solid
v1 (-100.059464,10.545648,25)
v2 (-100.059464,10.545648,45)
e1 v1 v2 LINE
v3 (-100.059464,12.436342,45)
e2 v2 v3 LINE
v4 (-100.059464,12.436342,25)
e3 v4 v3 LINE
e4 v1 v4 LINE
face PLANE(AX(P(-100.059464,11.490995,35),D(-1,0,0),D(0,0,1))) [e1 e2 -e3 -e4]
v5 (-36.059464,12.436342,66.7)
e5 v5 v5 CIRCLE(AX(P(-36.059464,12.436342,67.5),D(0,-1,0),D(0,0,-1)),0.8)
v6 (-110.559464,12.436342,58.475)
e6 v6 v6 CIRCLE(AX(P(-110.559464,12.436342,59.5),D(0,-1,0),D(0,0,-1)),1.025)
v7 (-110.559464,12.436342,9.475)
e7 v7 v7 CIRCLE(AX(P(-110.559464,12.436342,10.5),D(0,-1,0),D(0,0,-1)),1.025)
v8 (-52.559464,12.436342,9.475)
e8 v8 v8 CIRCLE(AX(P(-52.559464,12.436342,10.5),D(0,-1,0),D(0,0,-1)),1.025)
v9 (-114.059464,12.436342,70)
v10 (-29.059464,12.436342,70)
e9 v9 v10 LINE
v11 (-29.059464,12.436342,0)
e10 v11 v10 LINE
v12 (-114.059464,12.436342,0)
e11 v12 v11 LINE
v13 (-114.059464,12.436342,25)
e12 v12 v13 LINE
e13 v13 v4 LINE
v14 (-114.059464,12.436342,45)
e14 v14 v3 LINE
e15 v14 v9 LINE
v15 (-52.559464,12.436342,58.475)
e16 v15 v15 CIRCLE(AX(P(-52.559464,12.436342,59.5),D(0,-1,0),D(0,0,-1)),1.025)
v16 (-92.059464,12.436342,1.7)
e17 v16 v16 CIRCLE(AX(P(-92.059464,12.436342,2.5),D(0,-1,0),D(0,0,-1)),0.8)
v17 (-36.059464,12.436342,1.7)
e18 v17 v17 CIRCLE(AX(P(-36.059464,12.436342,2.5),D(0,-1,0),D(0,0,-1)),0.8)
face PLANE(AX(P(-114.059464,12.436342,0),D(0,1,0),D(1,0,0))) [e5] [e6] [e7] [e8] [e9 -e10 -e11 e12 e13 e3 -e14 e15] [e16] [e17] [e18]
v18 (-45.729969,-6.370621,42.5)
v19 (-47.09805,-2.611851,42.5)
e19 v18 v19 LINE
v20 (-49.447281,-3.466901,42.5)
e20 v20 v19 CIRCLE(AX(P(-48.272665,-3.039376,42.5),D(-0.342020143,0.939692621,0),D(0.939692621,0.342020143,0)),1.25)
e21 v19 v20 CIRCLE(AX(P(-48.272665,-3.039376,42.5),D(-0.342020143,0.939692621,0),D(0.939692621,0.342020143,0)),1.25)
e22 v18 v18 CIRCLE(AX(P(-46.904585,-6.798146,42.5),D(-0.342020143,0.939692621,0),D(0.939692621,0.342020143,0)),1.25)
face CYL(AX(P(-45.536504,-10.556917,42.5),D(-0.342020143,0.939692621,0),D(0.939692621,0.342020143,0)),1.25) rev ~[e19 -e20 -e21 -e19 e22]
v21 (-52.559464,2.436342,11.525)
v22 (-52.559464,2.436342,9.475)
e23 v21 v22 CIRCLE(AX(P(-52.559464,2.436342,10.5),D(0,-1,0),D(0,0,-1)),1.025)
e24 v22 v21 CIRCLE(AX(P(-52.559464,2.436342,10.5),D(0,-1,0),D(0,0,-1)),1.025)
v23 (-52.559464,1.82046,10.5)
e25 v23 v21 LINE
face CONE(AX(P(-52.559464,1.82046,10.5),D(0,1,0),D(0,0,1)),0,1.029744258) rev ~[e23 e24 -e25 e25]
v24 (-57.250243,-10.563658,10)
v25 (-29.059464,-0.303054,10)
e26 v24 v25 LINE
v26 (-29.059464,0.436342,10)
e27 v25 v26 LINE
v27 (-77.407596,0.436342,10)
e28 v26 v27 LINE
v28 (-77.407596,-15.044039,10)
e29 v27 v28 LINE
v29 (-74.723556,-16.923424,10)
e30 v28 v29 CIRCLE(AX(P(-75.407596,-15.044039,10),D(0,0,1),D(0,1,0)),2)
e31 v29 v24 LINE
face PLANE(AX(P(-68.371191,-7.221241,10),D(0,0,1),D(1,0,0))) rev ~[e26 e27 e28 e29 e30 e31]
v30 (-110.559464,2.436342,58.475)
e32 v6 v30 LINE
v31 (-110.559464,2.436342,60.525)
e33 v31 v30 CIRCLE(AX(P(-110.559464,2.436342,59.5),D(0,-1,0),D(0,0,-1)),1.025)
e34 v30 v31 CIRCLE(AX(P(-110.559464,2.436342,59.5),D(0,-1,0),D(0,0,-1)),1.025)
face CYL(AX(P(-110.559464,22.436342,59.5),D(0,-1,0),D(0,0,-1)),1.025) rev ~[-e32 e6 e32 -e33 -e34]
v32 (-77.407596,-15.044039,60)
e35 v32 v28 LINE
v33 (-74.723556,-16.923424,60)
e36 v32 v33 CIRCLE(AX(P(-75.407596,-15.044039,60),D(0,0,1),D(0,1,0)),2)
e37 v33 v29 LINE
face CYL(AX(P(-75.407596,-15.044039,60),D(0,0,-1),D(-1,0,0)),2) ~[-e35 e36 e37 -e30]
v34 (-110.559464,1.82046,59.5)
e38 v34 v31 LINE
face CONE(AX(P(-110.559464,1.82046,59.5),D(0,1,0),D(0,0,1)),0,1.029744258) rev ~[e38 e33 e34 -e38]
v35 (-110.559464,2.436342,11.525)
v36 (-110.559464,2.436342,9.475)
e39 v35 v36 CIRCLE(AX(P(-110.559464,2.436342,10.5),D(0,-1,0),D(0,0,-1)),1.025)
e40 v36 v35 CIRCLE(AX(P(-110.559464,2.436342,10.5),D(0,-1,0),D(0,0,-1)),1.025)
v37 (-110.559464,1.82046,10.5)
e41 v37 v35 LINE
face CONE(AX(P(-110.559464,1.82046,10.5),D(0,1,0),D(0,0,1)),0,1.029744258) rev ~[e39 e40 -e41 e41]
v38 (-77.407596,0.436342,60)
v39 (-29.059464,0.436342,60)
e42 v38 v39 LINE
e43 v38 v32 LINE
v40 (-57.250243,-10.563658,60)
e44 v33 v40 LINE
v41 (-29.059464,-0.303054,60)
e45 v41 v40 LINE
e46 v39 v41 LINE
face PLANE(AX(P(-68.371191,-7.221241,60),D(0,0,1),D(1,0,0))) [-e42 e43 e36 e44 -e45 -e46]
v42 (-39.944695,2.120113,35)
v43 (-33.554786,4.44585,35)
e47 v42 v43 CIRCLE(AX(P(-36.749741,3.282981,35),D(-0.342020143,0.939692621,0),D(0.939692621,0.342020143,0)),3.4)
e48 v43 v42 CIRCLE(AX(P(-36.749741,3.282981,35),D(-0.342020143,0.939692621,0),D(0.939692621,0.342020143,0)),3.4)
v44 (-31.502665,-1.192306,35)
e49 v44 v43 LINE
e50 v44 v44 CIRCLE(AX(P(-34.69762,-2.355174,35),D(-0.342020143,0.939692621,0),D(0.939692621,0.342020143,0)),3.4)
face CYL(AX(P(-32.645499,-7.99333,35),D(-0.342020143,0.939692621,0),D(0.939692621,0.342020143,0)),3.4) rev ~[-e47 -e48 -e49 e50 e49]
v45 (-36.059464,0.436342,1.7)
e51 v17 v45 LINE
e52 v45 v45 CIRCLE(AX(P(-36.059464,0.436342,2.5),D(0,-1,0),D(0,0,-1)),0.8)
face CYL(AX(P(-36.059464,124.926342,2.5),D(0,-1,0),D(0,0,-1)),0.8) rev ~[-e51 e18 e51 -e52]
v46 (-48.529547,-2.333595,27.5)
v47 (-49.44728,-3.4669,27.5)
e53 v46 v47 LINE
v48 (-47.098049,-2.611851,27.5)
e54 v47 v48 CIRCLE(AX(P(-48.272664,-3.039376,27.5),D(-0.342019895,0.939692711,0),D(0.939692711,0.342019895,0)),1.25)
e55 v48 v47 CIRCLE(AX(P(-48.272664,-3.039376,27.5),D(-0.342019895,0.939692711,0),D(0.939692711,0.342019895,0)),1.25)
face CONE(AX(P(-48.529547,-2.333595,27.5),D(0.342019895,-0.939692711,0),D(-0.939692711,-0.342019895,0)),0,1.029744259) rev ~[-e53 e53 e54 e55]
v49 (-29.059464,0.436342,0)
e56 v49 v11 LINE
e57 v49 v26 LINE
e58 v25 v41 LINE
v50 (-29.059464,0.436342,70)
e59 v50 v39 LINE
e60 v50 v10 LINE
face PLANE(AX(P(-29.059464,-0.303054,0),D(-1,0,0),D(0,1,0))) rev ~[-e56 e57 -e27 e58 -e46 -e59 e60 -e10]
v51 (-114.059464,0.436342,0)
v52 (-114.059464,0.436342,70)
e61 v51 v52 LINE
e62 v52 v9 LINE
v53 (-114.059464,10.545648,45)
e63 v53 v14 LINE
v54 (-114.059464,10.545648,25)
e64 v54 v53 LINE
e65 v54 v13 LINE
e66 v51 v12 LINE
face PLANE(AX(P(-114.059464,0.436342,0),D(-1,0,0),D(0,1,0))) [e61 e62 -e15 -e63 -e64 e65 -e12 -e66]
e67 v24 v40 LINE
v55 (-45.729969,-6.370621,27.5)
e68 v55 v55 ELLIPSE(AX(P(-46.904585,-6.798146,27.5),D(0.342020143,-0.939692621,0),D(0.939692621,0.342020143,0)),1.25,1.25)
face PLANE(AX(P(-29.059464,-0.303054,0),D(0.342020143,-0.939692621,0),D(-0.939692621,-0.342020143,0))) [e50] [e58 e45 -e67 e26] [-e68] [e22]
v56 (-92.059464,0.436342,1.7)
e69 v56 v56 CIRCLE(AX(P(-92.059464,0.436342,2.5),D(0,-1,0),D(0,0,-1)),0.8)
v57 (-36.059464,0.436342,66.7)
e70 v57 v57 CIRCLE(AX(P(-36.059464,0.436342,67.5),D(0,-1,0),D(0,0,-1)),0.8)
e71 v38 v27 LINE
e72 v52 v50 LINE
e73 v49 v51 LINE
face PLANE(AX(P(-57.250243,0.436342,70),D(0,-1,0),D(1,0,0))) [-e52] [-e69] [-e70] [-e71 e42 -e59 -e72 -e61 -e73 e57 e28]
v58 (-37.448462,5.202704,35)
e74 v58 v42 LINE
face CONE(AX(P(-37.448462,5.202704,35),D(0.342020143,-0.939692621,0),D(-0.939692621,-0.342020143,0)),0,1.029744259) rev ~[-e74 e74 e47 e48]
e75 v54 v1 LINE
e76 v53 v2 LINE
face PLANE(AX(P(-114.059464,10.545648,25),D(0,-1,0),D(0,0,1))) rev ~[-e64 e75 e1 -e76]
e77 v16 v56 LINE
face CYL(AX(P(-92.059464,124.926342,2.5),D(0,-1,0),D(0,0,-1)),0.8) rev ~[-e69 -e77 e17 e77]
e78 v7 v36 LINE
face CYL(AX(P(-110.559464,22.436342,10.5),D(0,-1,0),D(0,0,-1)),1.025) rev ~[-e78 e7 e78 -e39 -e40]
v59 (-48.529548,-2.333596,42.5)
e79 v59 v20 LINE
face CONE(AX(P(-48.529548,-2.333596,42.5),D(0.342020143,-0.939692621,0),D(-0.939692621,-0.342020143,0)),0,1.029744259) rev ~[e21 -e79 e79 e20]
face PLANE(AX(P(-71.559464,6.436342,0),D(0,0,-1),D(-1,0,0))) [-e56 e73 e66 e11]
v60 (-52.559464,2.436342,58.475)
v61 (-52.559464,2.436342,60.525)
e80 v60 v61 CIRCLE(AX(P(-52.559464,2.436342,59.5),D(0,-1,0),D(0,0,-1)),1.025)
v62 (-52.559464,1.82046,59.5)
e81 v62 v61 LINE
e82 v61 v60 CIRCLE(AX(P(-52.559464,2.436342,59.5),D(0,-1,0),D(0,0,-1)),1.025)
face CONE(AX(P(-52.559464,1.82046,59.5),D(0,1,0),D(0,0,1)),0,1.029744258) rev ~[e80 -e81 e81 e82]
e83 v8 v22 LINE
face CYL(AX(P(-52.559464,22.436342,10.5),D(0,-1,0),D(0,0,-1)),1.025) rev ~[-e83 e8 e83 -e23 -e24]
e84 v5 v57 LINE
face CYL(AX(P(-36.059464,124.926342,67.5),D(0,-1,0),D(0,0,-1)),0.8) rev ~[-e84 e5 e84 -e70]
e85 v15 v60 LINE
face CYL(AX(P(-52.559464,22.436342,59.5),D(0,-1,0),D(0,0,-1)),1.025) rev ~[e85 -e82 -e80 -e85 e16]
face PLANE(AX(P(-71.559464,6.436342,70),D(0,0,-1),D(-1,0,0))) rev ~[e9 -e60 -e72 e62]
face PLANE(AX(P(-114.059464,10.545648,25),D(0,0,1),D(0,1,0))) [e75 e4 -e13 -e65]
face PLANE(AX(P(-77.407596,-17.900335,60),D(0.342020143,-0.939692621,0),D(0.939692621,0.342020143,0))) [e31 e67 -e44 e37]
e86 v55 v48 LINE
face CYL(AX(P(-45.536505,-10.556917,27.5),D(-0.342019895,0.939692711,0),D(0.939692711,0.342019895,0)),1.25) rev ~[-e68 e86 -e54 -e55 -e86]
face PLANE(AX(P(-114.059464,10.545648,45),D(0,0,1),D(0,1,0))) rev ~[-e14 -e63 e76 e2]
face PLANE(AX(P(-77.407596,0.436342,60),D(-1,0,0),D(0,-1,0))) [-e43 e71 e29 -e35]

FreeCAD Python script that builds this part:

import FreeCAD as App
import Part
import Sketcher
from FreeCAD import Vector
Q = App.Units.Quantity


def edges_at(feature, points):
    """Names of the edges that pass closest to the given points."""
    edges = feature.Shape.Edges
    near = lambda p: min(range(len(edges)), key=lambda i: edges[i].distToShape(Part.Vertex(*p))[0])
    return sorted({f"Edge{near(p) + 1}" for p in points})

doc = App.newDocument("Part")
body = doc.addObject("PartDesign::Body", "Body")

sketch1 = body.newObject("Sketcher::SketchObject", "Sketch")
sketch1.AttachmentSupport = (doc.getObject("XY_Plane"), [""])
sketch1.MapMode = "FlatFace"
sketch1.addGeometry([
    Part.LineSegment(Vector(-29, 0, 0), Vector(-29, 12, 0)),
    Part.LineSegment(Vector(-29, 12, 0), Vector(-114, 12, 0)),
    Part.LineSegment(Vector(-114, 12, 0), Vector(-114, 0, 0)),
    Part.LineSegment(Vector(-114, 0, 0), Vector(-57, 0, 0)),
    Part.LineSegment(Vector(-57, 0, 0), Vector(-57, -11, 0)),
    Part.LineSegment(Vector(-57, -11, 0), Vector(-29, 0, 0)),
], False)
sketch1.addConstraint([
    Sketcher.Constraint("Coincident", 0, 2, 1, 1),
    Sketcher.Constraint("Coincident", 1, 2, 2, 1),
    Sketcher.Constraint("Coincident", 2, 2, 3, 1),
    Sketcher.Constraint("Coincident", 3, 2, 4, 1),
    Sketcher.Constraint("Coincident", 4, 2, 5, 1),
    Sketcher.Constraint("Coincident", 5, 2, 0, 1),
    Sketcher.Constraint("Vertical", 0),
    Sketcher.Constraint("Horizontal", 1),
    Sketcher.Constraint("Vertical", 2),
    Sketcher.Constraint("Horizontal", 3),
    Sketcher.Constraint("Vertical", 4),
    Sketcher.Constraint("DistanceX", 1, 2, 1, 1, Q("85 mm")),
    Sketcher.Constraint("DistanceY", 2, 2, 2, 1, Q("12 mm")),
    Sketcher.Constraint("DistanceY", 4, 2, 4, 1, Q("11 mm")),
    Sketcher.Constraint("Angle", 5, Q("20 deg")),
    Sketcher.Constraint("Distance", 5, Q("30 mm")),
    Sketcher.Constraint("DistanceX", 0, 2, -1, 1, Q("29.059464 mm")),
    Sketcher.Constraint("DistanceY", -1, 1, 0, 2, Q("12.436342 mm")),
])
pad1 = body.newObject("PartDesign::Pad", "Pad")
pad1.Profile = sketch1
pad1.Length = 70

sketch2 = body.newObject("Sketcher::SketchObject", "Sketch001")
sketch2.AttachmentSupport = (doc.getObject("XY_Plane"), [""])
sketch2.MapMode = "FlatFace"
sketch2.AttachmentOffset = App.Placement(Vector(0, 0, 70), App.Rotation())
sketch2.addGeometry([
    Part.LineSegment(Vector(-29.1, 0.4, 0), Vector(-57.3, 0.4, 0)),
    Part.LineSegment(Vector(-57.3, 0.4, 0), Vector(-57.3, -10.6, 0)),
    Part.LineSegment(Vector(-57.3, -10.6, 0), Vector(-29.1, -0.3, 0)),
    Part.LineSegment(Vector(-29.1, -0.3, 0), Vector(-29.1, 0.4, 0)),
], False)
sketch2.addConstraint([
    Sketcher.Constraint("Coincident", 0, 2, 1, 1),
    Sketcher.Constraint("Coincident", 1, 2, 2, 1),
    Sketcher.Constraint("Coincident", 2, 2, 3, 1),
    Sketcher.Constraint("Coincident", 3, 2, 0, 1),
    Sketcher.Constraint("Horizontal", 0),
    Sketcher.Constraint("Vertical", 1),
    Sketcher.Constraint("Vertical", 3),
    Sketcher.Constraint("DistanceY", 1, 2, 1, 1, Q("11 mm")),
    Sketcher.Constraint("Angle", 2, Q("20 deg")),
    Sketcher.Constraint("Distance", 2, Q("30 mm")),
    Sketcher.Constraint("DistanceX", 0, 2, -1, 1, Q("57.250243 mm")),
    Sketcher.Constraint("DistanceY", -1, 1, 0, 2, Q("0.436342 mm")),
])
pocket1 = body.newObject("PartDesign::Pocket", "Pocket")
pocket1.Profile = sketch2
pocket1.Length = 10

sketch3 = body.newObject("Sketcher::SketchObject", "Sketch002")
sketch3.AttachmentSupport = (doc.getObject("XY_Plane"), [""])
sketch3.MapMode = "FlatFace"
sketch3.addGeometry([
    Part.LineSegment(Vector(-57.3, -10.6, 0), Vector(-57.3, 0.4, 0)),
    Part.LineSegment(Vector(-57.3, 0.4, 0), Vector(-29.1, 0.4, 0)),
    Part.LineSegment(Vector(-29.1, 0.4, 0), Vector(-29.1, -0.3, 0)),
    Part.LineSegment(Vector(-29.1, -0.3, 0), Vector(-57.3, -10.6, 0)),
], False)
sketch3.addConstraint([
    Sketcher.Constraint("Coincident", 0, 2, 1, 1),
    Sketcher.Constraint("Coincident", 1, 2, 2, 1),
    Sketcher.Constraint("Coincident", 2, 2, 3, 1),
    Sketcher.Constraint("Coincident", 3, 2, 0, 1),
    Sketcher.Constraint("Vertical", 0),
    Sketcher.Constraint("Horizontal", 1),
    Sketcher.Constraint("Vertical", 2),
    Sketcher.Constraint("DistanceY", 0, 1, 0, 2, Q("11 mm")),
    Sketcher.Constraint("Angle", 3, Q("-160 deg")),
    Sketcher.Constraint("Distance", 3, Q("30 mm")),
    Sketcher.Constraint("DistanceX", 0, 2, -1, 1, Q("57.250243 mm")),
    Sketcher.Constraint("DistanceY", -1, 1, 0, 2, Q("0.436342 mm")),
])
pocket2 = body.newObject("PartDesign::Pocket", "Pocket001")
pocket2.Profile = sketch3
pocket2.Length = 10
pocket2.Reversed = True

sketch4 = body.newObject("Sketcher::SketchObject", "Sketch003")
sketch4.AttachmentSupport = (doc.getObject("XZ_Plane"), [""])
sketch4.MapMode = "FlatFace"
sketch4.AttachmentOffset = App.Placement(Vector(0, 0, -12.436342), App.Rotation())
sketch4.addGeometry([
    Part.Circle(Vector(-110.6, 10.5, 0), Vector(0, 0, 1), 1),
    Part.Circle(Vector(-110.6, 59.5, 0), Vector(0, 0, 1), 1),
    Part.Circle(Vector(-52.6, 59.5, 0), Vector(0, 0, 1), 1),
    Part.Circle(Vector(-52.6, 10.5, 0), Vector(0, 0, 1), 1),
], False)
sketch4.addConstraint([
    Sketcher.Constraint("Equal", 0, 1),
    Sketcher.Constraint("Equal", 1, 2),
    Sketcher.Constraint("Equal", 2, 3),
    Sketcher.Constraint("Horizontal", 1, 3, 2, 3),
    Sketcher.Constraint("Horizontal", 0, 3, 3, 3),
    Sketcher.Constraint("Vertical", 0, 3, 1, 3),
    Sketcher.Constraint("Vertical", 2, 3, 3, 3),
    Sketcher.Constraint("Diameter", 0, Q("2.05 mm")),
    Sketcher.Constraint("DistanceY", 0, 3, 1, 3, Q("49 mm")),
    Sketcher.Constraint("DistanceX", 1, 3, 2, 3, Q("58 mm")),
    Sketcher.Constraint("DistanceY", -1, 1, 0, 3, Q("10.5 mm")),
    Sketcher.Constraint("DistanceX", 0, 3, -1, 1, Q("110.559464 mm")),
])
doc.recompute()
hole = body.newObject("PartDesign::Hole", "Hole")
hole.Profile = sketch4
hole.ThreadType = "None"
hole.Diameter = 2.05
hole.DepthType = "Dimension"
hole.Depth = 10
hole.DrillPoint = "Angled"
hole.DrillPointAngle = 118
hole.Reversed = True

sketch5 = body.newObject("Sketcher::SketchObject", "Sketch004")
sketch5.AttachmentSupport = (doc.getObject("YZ_Plane"), [""])
sketch5.MapMode = "FlatFace"
sketch5.AttachmentOffset = App.Placement(Vector(0, 0, -114.059464), App.Rotation())
sketch5.addGeometry([
    Part.LineSegment(Vector(12.4, 25, 0), Vector(10.5, 25, 0)),
    Part.LineSegment(Vector(10.5, 25, 0), Vector(10.5, 45, 0)),
    Part.LineSegment(Vector(10.5, 45, 0), Vector(12.4, 45, 0)),
    Part.LineSegment(Vector(12.4, 45, 0), Vector(12.4, 25, 0)),
], False)
sketch5.addConstraint([
    Sketcher.Constraint("Coincident", 0, 2, 1, 1),
    Sketcher.Constraint("Coincident", 1, 2, 2, 1),
    Sketcher.Constraint("Coincident", 2, 2, 3, 1),
    Sketcher.Constraint("Coincident", 3, 2, 0, 1),
    Sketcher.Constraint("Horizontal", 0),
    Sketcher.Constraint("Vertical", 1),
    Sketcher.Constraint("Horizontal", 2),
    Sketcher.Constraint("Vertical", 3),
    Sketcher.Constraint("DistanceY", 1, 1, 1, 2, Q("20 mm")),
    Sketcher.Constraint("DistanceY", -1, 1, 0, 2, Q("25 mm")),
    Sketcher.Constraint("DistanceX", 0, 2, 0, 1, Q("1.890694 mm")),
    Sketcher.Constraint("DistanceX", -1, 1, 0, 2, Q("10.545648 mm")),
])
pocket3 = body.newObject("PartDesign::Pocket", "Pocket002")
pocket3.Profile = sketch5
pocket3.Length = 14
pocket3.Reversed = True

sketch6 = body.newObject("Sketcher::SketchObject", "Sketch005")
sketch6.Placement = App.Placement(Vector(-3.301912, 9.071929, 0), App.Rotation(Vector(-0.939692621, -0.342020143, 0), Vector(0, 0, -1), Vector(0.342020143, -0.939692621, 0), "ZXY"))
sketch6.addGeometry(Part.Circle(Vector(33.4, -35, 0), Vector(0, 0, 1), 3.4), False)
sketch6.addConstraint([
    Sketcher.Constraint("Diameter", 0, Q("6.8 mm")),
    Sketcher.Constraint("DistanceY", 0, 3, -1, 1, Q("35 mm")),
    Sketcher.Constraint("DistanceX", -1, 1, 0, 3, Q("33.410614 mm")),
])
doc.recompute()
hole2 = body.newObject("PartDesign::Hole", "Hole001")
hole2.Profile = sketch6
hole2.ThreadType = "None"
hole2.Diameter = 6.8
hole2.DepthType = "Dimension"
hole2.Depth = 6
hole2.DrillPoint = "Angled"
hole2.DrillPointAngle = 118

sketch7 = body.newObject("Sketcher::SketchObject", "Sketch006")
sketch7.Placement = App.Placement(Vector(-3.301912, 9.071929, 0), App.Rotation(Vector(-0.939692621, -0.342020143, 0), Vector(0, 0, -1), Vector(0.342020143, -0.939692621, 0), "ZXY"))
sketch7.addGeometry(Part.Circle(Vector(46.4, -42.5, 0), Vector(0, 0, 1), 1.2), False)
sketch7.addConstraint([
    Sketcher.Constraint("Diameter", 0, Q("2.5 mm")),
    Sketcher.Constraint("DistanceY", 0, 3, -1, 1, Q("42.5 mm")),
    Sketcher.Constraint("DistanceX", -1, 1, 0, 3, Q("46.400995 mm")),
])
doc.recompute()
hole3 = body.newObject("PartDesign::Hole", "Hole002")
hole3.Profile = sketch7
hole3.ThreadType = "None"
hole3.Diameter = 2.5
hole3.DepthType = "Dimension"
hole3.Depth = 4
hole3.DrillPoint = "Angled"
hole3.DrillPointAngle = 118

sketch8 = body.newObject("Sketcher::SketchObject", "Sketch007")
sketch8.Placement = App.Placement(Vector(-3.301905, 9.071918, 0), App.Rotation(Vector(-0.939692711, -0.342019895, 0), Vector(0, 0, -1), Vector(0.342019895, -0.939692711, 0), "ZXY"))
sketch8.addGeometry(Part.Circle(Vector(46.4, -27.5, 0), Vector(0, 0, 1), 1.2), False)
sketch8.addConstraint([
    Sketcher.Constraint("Diameter", 0, Q("2.5 mm")),
    Sketcher.Constraint("DistanceY", 0, 3, -1, 1, Q("27.5 mm")),
    Sketcher.Constraint("DistanceX", -1, 1, 0, 3, Q("46.400998 mm")),
])
doc.recompute()
hole4 = body.newObject("PartDesign::Hole", "Hole003")
hole4.Profile = sketch8
hole4.ThreadType = "None"
hole4.Diameter = 2.5
hole4.DepthType = "Dimension"
hole4.Depth = 4
hole4.DrillPoint = "Angled"
hole4.DrillPointAngle = 118

sketch9 = body.newObject("Sketcher::SketchObject", "Sketch008")
sketch9.AttachmentSupport = (doc.getObject("XZ_Plane"), [""])
sketch9.MapMode = "FlatFace"
sketch9.AttachmentOffset = App.Placement(Vector(0, 0, -12.436342), App.Rotation())
sketch9.addGeometry([
    Part.Circle(Vector(-36.1, 67.5, 0), Vector(0, 0, 1), 0.8),
    Part.Circle(Vector(-36.1, 2.5, 0), Vector(0, 0, 1), 0.8),
    Part.Circle(Vector(-92.1, 2.5, 0), Vector(0, 0, 1), 0.8),
], False)
sketch9.addConstraint([
    Sketcher.Constraint("Equal", 0, 1),
    Sketcher.Constraint("Equal", 1, 2),
    Sketcher.Constraint("Horizontal", 1, 3, 2, 3),
    Sketcher.Constraint("Vertical", 0, 3, 1, 3),
    Sketcher.Constraint("Diameter", 0, Q("1.6 mm")),
    Sketcher.Constraint("DistanceY", 1, 3, 0, 3, Q("65 mm")),
    Sketcher.Constraint("DistanceX", 2, 3, 1, 3, Q("56 mm")),
    Sketcher.Constraint("DistanceY", -1, 1, 0, 3, Q("67.5 mm")),
    Sketcher.Constraint("DistanceX", 0, 3, -1, 1, Q("36.059464 mm")),
])
doc.recompute()
hole5 = body.newObject("PartDesign::Hole", "Hole004")
hole5.Profile = sketch9
hole5.ThreadType = "None"
hole5.Diameter = 1.6
hole5.DepthType = "ThroughAll"
hole5.Reversed = True

sketch10 = body.newObject("Sketcher::SketchObject", "Sketch009")
sketch10.AttachmentSupport = (doc.getObject("XY_Plane"), [""])
sketch10.MapMode = "FlatFace"
sketch10.AttachmentOffset = App.Placement(Vector(0, 0, 60), App.Rotation())
sketch10.addGeometry([
    Part.LineSegment(Vector(-57, 0, 0), Vector(-77, 0, 0)),
    Part.LineSegment(Vector(-77, 0, 0), Vector(-77, -18, 0)),
    Part.LineSegment(Vector(-77, -18, 0), Vector(-57, -11, 0)),
    Part.LineSegment(Vector(-57, -11, 0), Vector(-57, 0, 0)),
], False)
sketch10.addConstraint([
    Sketcher.Constraint("Coincident", 0, 2, 1, 1),
    Sketcher.Constraint("Coincident", 1, 2, 2, 1),
    Sketcher.Constraint("Coincident", 2, 2, 3, 1),
    Sketcher.Constraint("Coincident", 3, 2, 0, 1),
    Sketcher.Constraint("Horizontal", 0),
    Sketcher.Constraint("Vertical", 1),
    Sketcher.Constraint("Vertical", 3),
    Sketcher.Constraint("DistanceY", 3, 1, 3, 2, Q("11 mm")),
    Sketcher.Constraint("Angle", 2, Q("20 deg")),
    Sketcher.Constraint("DistanceX", 0, 2, 0, 1, Q("20.157354 mm")),
    Sketcher.Constraint("DistanceX", 0, 2, -1, 1, Q("77.407596 mm")),
    Sketcher.Constraint("DistanceY", -1, 1, 0, 2, Q("0.436342 mm")),
])
pad2 = body.newObject("PartDesign::Pad", "Pad001")
pad2.Profile = sketch10
pad2.Length = 50
pad2.Reversed = True
doc.recompute()

fillet = body.newObject("PartDesign::Fillet", "Fillet")
fillet.Base = (pad2, edges_at(pad2, [(-77.408, -17.9, 35)]))
fillet.Radius = 2

doc.recompute()
